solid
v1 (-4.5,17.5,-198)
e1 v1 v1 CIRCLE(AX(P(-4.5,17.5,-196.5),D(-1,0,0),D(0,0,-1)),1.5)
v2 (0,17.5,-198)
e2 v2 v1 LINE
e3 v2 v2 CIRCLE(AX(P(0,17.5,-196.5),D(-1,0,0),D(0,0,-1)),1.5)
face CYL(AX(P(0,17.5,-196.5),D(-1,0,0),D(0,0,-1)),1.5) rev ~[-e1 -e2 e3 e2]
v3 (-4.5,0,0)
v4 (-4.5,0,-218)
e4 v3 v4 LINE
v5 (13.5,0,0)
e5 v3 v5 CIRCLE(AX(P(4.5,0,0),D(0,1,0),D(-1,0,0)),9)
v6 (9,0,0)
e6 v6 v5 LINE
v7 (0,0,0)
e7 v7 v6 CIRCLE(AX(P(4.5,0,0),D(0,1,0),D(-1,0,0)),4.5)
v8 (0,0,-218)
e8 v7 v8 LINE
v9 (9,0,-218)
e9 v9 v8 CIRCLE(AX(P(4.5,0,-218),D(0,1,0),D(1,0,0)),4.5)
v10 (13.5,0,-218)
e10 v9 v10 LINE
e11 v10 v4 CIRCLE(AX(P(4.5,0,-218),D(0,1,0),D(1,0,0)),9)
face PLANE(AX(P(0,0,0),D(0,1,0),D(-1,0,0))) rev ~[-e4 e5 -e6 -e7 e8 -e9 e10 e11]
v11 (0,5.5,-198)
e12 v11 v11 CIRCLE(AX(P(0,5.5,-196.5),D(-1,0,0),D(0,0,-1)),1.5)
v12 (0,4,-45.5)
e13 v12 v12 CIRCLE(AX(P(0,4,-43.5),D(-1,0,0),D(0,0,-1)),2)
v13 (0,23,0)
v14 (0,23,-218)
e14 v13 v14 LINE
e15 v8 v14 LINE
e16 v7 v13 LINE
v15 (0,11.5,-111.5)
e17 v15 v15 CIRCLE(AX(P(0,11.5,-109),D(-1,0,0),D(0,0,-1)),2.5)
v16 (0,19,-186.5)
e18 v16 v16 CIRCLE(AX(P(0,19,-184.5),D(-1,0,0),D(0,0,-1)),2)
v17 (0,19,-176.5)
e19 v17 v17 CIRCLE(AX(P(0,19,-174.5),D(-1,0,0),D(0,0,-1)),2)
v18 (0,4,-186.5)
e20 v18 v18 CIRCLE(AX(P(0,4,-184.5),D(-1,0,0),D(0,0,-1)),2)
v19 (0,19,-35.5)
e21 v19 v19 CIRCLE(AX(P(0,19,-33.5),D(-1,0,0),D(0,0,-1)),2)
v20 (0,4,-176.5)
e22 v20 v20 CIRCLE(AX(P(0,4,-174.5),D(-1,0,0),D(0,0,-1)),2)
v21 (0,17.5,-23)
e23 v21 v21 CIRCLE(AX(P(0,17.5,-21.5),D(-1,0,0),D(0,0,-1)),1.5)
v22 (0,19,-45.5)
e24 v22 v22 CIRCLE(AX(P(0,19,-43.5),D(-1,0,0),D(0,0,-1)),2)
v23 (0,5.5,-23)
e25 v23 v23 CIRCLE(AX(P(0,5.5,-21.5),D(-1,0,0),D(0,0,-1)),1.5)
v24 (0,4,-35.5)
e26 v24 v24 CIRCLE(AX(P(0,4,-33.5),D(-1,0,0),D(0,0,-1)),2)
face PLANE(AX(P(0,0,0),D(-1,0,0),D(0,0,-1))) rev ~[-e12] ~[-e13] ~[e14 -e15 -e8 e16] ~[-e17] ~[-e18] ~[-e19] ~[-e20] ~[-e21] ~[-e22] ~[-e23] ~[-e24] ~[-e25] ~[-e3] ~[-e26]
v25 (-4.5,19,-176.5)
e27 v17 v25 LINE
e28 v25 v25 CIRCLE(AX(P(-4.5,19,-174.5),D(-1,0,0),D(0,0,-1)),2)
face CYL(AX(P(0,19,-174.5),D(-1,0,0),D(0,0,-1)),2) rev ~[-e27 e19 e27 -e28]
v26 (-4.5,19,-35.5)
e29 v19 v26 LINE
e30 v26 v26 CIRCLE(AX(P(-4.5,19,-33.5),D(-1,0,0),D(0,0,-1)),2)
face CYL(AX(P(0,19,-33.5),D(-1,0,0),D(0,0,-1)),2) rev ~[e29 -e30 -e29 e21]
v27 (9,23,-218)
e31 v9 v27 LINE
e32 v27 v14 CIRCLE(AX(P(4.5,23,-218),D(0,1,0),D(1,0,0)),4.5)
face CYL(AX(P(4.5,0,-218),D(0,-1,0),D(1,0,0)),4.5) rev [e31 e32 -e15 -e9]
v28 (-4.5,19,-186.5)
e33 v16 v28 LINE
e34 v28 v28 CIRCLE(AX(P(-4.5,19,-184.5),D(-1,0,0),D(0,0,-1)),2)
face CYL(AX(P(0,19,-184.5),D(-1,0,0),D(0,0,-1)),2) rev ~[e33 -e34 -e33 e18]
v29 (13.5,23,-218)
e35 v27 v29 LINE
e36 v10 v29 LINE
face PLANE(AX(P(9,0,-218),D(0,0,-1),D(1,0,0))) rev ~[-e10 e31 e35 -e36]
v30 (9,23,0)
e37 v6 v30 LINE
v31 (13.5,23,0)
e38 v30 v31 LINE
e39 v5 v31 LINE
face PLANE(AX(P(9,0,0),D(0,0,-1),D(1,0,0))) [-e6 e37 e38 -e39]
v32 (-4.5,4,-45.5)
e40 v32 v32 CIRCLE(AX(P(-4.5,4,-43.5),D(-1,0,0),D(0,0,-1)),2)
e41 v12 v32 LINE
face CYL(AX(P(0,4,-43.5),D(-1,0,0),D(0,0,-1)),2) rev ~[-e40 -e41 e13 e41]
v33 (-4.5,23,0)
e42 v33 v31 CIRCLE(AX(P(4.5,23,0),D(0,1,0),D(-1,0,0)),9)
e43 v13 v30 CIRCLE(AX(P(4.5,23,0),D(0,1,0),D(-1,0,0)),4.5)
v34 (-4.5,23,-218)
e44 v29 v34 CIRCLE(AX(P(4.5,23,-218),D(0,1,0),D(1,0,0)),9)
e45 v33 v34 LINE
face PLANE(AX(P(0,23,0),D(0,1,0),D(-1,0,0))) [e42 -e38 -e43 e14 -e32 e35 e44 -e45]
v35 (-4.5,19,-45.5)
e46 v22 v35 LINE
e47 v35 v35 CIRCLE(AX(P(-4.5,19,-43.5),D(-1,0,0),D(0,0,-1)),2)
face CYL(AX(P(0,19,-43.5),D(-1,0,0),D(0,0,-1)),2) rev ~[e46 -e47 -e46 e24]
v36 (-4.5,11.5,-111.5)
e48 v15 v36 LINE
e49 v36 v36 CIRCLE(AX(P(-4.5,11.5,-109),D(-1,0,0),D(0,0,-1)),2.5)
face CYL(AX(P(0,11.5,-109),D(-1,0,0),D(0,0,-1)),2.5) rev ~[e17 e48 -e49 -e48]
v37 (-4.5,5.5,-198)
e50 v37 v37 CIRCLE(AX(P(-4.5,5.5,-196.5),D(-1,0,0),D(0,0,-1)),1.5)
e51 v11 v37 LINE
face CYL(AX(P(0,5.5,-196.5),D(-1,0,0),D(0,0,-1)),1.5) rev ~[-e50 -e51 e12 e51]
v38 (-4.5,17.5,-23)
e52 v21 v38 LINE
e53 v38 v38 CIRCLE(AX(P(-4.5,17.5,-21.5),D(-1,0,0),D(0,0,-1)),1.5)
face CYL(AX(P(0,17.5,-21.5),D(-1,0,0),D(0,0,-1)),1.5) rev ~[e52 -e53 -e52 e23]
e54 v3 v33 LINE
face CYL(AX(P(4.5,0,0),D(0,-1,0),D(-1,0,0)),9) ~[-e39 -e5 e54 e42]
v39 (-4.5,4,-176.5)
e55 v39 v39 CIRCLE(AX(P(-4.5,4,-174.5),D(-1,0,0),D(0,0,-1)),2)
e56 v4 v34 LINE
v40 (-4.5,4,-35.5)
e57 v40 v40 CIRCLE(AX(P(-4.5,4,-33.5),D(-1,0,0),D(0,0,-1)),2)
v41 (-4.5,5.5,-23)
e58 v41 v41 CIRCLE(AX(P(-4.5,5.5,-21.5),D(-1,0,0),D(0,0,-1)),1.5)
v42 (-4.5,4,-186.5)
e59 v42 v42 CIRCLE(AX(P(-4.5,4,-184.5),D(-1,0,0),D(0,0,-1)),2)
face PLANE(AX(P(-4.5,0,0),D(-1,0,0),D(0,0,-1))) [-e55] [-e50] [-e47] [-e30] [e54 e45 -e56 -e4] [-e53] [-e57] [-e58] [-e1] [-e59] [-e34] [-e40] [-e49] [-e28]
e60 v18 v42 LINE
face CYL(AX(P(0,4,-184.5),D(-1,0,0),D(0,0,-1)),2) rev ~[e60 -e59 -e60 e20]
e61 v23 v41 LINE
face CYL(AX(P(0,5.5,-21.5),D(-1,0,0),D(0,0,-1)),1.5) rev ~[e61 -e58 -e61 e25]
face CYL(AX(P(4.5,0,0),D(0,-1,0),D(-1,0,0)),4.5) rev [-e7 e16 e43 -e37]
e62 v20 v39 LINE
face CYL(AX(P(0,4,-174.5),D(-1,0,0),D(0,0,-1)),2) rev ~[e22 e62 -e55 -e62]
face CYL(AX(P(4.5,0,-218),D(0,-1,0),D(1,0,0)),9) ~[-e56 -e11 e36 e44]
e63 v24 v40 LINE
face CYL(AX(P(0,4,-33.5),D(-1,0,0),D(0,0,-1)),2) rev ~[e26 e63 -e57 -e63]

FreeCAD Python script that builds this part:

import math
import FreeCAD as App
import Part
import Sketcher
from FreeCAD import Vector
Q = App.Units.Quantity

doc = App.newDocument("Part")
body = doc.addObject("PartDesign::Body", "Body")

# Sketch on XZ plane
sketch1 = body.newObject("Sketcher::SketchObject", "Sketch")
sketch1.AttachmentSupport = (doc.getObject("XZ_Plane"), [""])
sketch1.MapMode = "FlatFace"
sketch1.addGeometry([
    Part.ArcOfCircle(Part.Circle(Vector(4.5, 0, 0), Vector(0, 0, 1), 4.5), math.radians(0), math.radians(180)),  # 0
    Part.LineSegment(Vector(0, 0, 0), Vector(0, -218, 0)),  # 1
    Part.ArcOfCircle(Part.Circle(Vector(4.5, -218, 0), Vector(0, 0, 1), 4.5), math.radians(180), math.radians(360)),  # 2
    Part.LineSegment(Vector(9, -218, 0), Vector(13.5, -218, 0)),  # 3
    Part.ArcOfCircle(Part.Circle(Vector(4.5, -218, 0), Vector(0, 0, 1), 9), math.radians(180), math.radians(360)),  # 4
    Part.LineSegment(Vector(-4.5, -218, 0), Vector(-4.5, 0, 0)),  # 5
    Part.ArcOfCircle(Part.Circle(Vector(4.5, 0, 0), Vector(0, 0, 1), 9), math.radians(0), math.radians(180)),  # 6
    Part.LineSegment(Vector(13.5, 0, 0), Vector(9, 0, 0)),  # 7
], False)
sketch1.addConstraint([
    Sketcher.Constraint("Tangent", 0, 2, 1, 1),
    Sketcher.Constraint("Tangent", 1, 2, 2, 1),
    Sketcher.Constraint("Coincident", 2, 2, 3, 1),
    Sketcher.Constraint("Coincident", 3, 2, 4, 2),
    Sketcher.Constraint("Tangent", 4, 1, 5, 1),
    Sketcher.Constraint("Tangent", 5, 2, 6, 2),
    Sketcher.Constraint("Coincident", 6, 1, 7, 1),
    Sketcher.Constraint("Coincident", 7, 2, 0, 1),
    Sketcher.Constraint("Vertical", 1),
    Sketcher.Constraint("Horizontal", 3),
    Sketcher.Constraint("Vertical", 5),
    Sketcher.Constraint("Horizontal", 7),
    Sketcher.Constraint("Coincident", 0, 2, -1, 1),
    Sketcher.Constraint("Coincident", 4, 3, 2, 3),
    Sketcher.Constraint("Coincident", 6, 3, 0, 3),
    Sketcher.Constraint("Equal", 0, 2),
    Sketcher.Constraint("PointOnObject", 6, 1, -1),
    Sketcher.Constraint("Horizontal", 1, 2, 2, 2),
    Sketcher.Constraint("Radius", 4, Q("9 mm")),
    Sketcher.Constraint("Radius", 0, Q("4.5 mm")),
    Sketcher.Constraint("DistanceY", 1, 2, 1, 1, Q("218 mm")),
])
pad1 = body.newObject("PartDesign::Pad", "Pad")
pad1.Profile = sketch1
pad1.Length = 23
pad1.Reversed = True

# Sketch on YZ plane
sketch2 = body.newObject("Sketcher::SketchObject", "Sketch001")
sketch2.AttachmentSupport = (doc.getObject("YZ_Plane"), [""])
sketch2.MapMode = "FlatFace"
sketch2.addGeometry([
    Part.Circle(Vector(17.5, -21.5, 0), Vector(0, 0, 1), 1.5),
    Part.Circle(Vector(5.5, -21.5, 0), Vector(0, 0, 1), 1.5),
    Part.Circle(Vector(17.5, -196.5, 0), Vector(0, 0, 1), 1.5),
    Part.Circle(Vector(5.5, -196.5, 0), Vector(0, 0, 1), 1.5),
], False)
sketch2.addConstraint([
    Sketcher.Constraint("Equal", 0, 1),
    Sketcher.Constraint("Equal", 1, 2),
    Sketcher.Constraint("Equal", 2, 3),
    Sketcher.Constraint("Horizontal", 0, 3, 1, 3),
    Sketcher.Constraint("Horizontal", 2, 3, 3, 3),
    Sketcher.Constraint("Vertical", 0, 3, 2, 3),
    Sketcher.Constraint("Vertical", 1, 3, 3, 3),
    Sketcher.Constraint("Diameter", 0, Q("3 mm")),
    Sketcher.Constraint("DistanceX", 1, 3, 0, 3, Q("12 mm")),
    Sketcher.Constraint("DistanceY", 2, 3, 0, 3, Q("175 mm")),
    Sketcher.Constraint("DistanceX", -1, 1, 0, 3, Q("17.5 mm")),
    Sketcher.Constraint("DistanceY", 0, 3, -1, 1, Q("21.5 mm")),
])
doc.recompute()
hole = body.newObject("PartDesign::Hole", "Hole")
hole.Profile = sketch2
hole.ThreadType = "None"
hole.Diameter = 3
hole.DepthType = "ThroughAll"

# Sketch on YZ plane
sketch3 = body.newObject("Sketcher::SketchObject", "Sketch002")
sketch3.AttachmentSupport = (doc.getObject("YZ_Plane"), [""])
sketch3.MapMode = "FlatFace"
sketch3.addGeometry([
    Part.Circle(Vector(19, -184.5, 0), Vector(0, 0, 1), 2),  # 0
    Part.Circle(Vector(19, -174.5, 0), Vector(0, 0, 1), 2),  # 1
    Part.Circle(Vector(4, -184.5, 0), Vector(0, 0, 1), 2),  # 2
    Part.Circle(Vector(4, -174.5, 0), Vector(0, 0, 1), 2),  # 3
    Part.Circle(Vector(19, -33.5, 0), Vector(0, 0, 1), 2),  # 4
    Part.Circle(Vector(19, -43.5, 0), Vector(0, 0, 1), 2),  # 5
    Part.Circle(Vector(4, -33.5, 0), Vector(0, 0, 1), 2),  # 6
    Part.Circle(Vector(4, -43.5, 0), Vector(0, 0, 1), 2),  # 7
], False)
sketch3.addConstraint([
    Sketcher.Constraint("Equal", 0, 1),
    Sketcher.Constraint("Equal", 1, 2),
    Sketcher.Constraint("Equal", 2, 3),
    Sketcher.Constraint("Equal", 3, 4),
    Sketcher.Constraint("Equal", 4, 5),
    Sketcher.Constraint("Equal", 5, 6),
    Sketcher.Constraint("Equal", 6, 7),
    Sketcher.Constraint("Horizontal", 0, 3, 2, 3),
    Sketcher.Constraint("Horizontal", 1, 3, 3, 3),
    Sketcher.Constraint("Horizontal", 4, 3, 6, 3),
    Sketcher.Constraint("Horizontal", 5, 3, 7, 3),
    Sketcher.Constraint("Vertical", 0, 3, 1, 3),
    Sketcher.Constraint("Vertical", 2, 3, 3, 3),
    Sketcher.Constraint("Vertical", 1, 3, 4, 3),
    Sketcher.Constraint("Vertical", 4, 3, 5, 3),
    Sketcher.Constraint("Vertical", 3, 3, 6, 3),
    Sketcher.Constraint("Vertical", 6, 3, 7, 3),
    Sketcher.Constraint("Diameter", 0, Q("4 mm")),
    Sketcher.Constraint("DistanceX", -1, 1, 0, 3, Q("19 mm")),
    Sketcher.Constraint("DistanceX", -1, 1, 2, 3, Q("4 mm")),
    Sketcher.Constraint("DistanceY", 0, 3, 1, 3, Q("10 mm")),
    Sketcher.Constraint("DistanceY", 1, 3, 4, 3, Q("141 mm")),
    Sketcher.Constraint("DistanceY", 5, 3, 4, 3, Q("10 mm")),
    Sketcher.Constraint("DistanceY", 0, 3, -1, 1, Q("184.5 mm")),
])
doc.recompute()
hole2 = body.newObject("PartDesign::Hole", "Hole001")
hole2.Profile = sketch3
hole2.ThreadType = "None"
hole2.Diameter = 4
hole2.DepthType = "ThroughAll"

# Sketch on YZ plane
sketch4 = body.newObject("Sketcher::SketchObject", "Sketch003")
sketch4.AttachmentSupport = (doc.getObject("YZ_Plane"), [""])
sketch4.MapMode = "FlatFace"
sketch4.addGeometry(Part.Circle(Vector(11.5, -109, 0), Vector(0, 0, 1), 2.5), False)
sketch4.addConstraint([
    Sketcher.Constraint("Diameter", 0, Q("5 mm")),
    Sketcher.Constraint("DistanceY", 0, 3, -1, 1, Q("109 mm")),
    Sketcher.Constraint("DistanceX", -1, 1, 0, 3, Q("11.5 mm")),
])
doc.recompute()
hole3 = body.newObject("PartDesign::Hole", "Hole002")
hole3.Profile = sketch4
hole3.ThreadType = "None"
hole3.Diameter = 5
hole3.DepthType = "ThroughAll"

doc.recompute()
